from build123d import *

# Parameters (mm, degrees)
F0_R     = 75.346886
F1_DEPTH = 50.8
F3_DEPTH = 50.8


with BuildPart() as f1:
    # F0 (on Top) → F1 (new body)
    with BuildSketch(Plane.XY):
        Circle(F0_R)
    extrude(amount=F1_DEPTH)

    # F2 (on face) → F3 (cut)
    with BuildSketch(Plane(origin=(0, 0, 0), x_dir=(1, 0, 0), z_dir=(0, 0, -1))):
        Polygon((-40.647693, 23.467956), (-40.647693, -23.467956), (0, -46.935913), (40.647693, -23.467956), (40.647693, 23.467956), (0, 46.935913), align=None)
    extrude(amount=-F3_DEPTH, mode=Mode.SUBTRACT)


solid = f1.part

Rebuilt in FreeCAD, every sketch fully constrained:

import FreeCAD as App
import Part
import Sketcher
Q = App.Units.Quantity


def add_polygon(sketch, points):
    """Adds a closed chain of lines whose ends are joined by coincident constraints."""
    first, n = sketch.GeometryCount, len(points)
    for a, b in zip(points, points[1:] + points[:1]):
        sketch.addGeometry(Part.LineSegment(App.Vector(*a, 0), App.Vector(*b, 0)), False)
    for i in range(n):
        sketch.addConstraint(Sketcher.Constraint("Coincident", first + i, 2, first + (i + 1) % n, 1))

doc = App.newDocument("Part")
body = doc.addObject("PartDesign::Body", "Body")

sketch1 = body.newObject("Sketcher::SketchObject", "Sketch")
sketch1.AttachmentSupport = (doc.getObject("XY_Plane"), [""])
sketch1.MapMode = "FlatFace"
sketch1.addGeometry(Part.Circle(App.Vector(0, 0, 0), App.Vector(0, 0, 1), 75), False)
sketch1.addConstraint(Sketcher.Constraint("Coincident", 0, 3, -1, 1))
sketch1.addConstraint(Sketcher.Constraint("Diameter", 0, Q("150.693772 mm")))
pad1 = body.newObject("PartDesign::Pad", "Pad")
pad1.Profile = sketch1
pad1.Length = Q("2 in")

sketch2 = body.newObject("Sketcher::SketchObject", "Sketch001")
sketch2.AttachmentSupport = (doc.getObject("XY_Plane"), [""])
sketch2.MapMode = "FlatFace"
add_polygon(sketch2, [(-41, -23), (-41, 23), (0, 47), (41, 23), (41, -23), (0, -47)])
sketch2.addConstraint(Sketcher.Constraint("Vertical", 0))
sketch2.addConstraint(Sketcher.Constraint("Vertical", 3))
sketch2.addConstraint(Sketcher.Constraint("Symmetric", 0, 2, 3, 2, -1, 1))
sketch2.addConstraint(Sketcher.Constraint("Symmetric", 1, 2, 4, 2, -1, 1))
sketch2.addConstraint(Sketcher.Constraint("PointOnObject", 1, 2, -2))
sketch2.addConstraint(Sketcher.Constraint("Parallel", 2, 5))
sketch2.addConstraint(Sketcher.Constraint("Horizontal", 0, 2, 2, 2))
sketch2.addConstraint(Sketcher.Constraint("Angle", 1, Q("30.000001 deg")))
sketch2.addConstraint(Sketcher.Constraint("DistanceY", 0, 1, 0, 2, Q("46.935912 mm")))
sketch2.addConstraint(Sketcher.Constraint("DistanceY", 3, 2, 1, 2, Q("70.403869 mm")))
pocket1 = body.newObject("PartDesign::Pocket", "Pocket")
pocket1.Profile = sketch2
pocket1.Length = Q("2 in")
pocket1.Reversed = True

doc.recompute()
